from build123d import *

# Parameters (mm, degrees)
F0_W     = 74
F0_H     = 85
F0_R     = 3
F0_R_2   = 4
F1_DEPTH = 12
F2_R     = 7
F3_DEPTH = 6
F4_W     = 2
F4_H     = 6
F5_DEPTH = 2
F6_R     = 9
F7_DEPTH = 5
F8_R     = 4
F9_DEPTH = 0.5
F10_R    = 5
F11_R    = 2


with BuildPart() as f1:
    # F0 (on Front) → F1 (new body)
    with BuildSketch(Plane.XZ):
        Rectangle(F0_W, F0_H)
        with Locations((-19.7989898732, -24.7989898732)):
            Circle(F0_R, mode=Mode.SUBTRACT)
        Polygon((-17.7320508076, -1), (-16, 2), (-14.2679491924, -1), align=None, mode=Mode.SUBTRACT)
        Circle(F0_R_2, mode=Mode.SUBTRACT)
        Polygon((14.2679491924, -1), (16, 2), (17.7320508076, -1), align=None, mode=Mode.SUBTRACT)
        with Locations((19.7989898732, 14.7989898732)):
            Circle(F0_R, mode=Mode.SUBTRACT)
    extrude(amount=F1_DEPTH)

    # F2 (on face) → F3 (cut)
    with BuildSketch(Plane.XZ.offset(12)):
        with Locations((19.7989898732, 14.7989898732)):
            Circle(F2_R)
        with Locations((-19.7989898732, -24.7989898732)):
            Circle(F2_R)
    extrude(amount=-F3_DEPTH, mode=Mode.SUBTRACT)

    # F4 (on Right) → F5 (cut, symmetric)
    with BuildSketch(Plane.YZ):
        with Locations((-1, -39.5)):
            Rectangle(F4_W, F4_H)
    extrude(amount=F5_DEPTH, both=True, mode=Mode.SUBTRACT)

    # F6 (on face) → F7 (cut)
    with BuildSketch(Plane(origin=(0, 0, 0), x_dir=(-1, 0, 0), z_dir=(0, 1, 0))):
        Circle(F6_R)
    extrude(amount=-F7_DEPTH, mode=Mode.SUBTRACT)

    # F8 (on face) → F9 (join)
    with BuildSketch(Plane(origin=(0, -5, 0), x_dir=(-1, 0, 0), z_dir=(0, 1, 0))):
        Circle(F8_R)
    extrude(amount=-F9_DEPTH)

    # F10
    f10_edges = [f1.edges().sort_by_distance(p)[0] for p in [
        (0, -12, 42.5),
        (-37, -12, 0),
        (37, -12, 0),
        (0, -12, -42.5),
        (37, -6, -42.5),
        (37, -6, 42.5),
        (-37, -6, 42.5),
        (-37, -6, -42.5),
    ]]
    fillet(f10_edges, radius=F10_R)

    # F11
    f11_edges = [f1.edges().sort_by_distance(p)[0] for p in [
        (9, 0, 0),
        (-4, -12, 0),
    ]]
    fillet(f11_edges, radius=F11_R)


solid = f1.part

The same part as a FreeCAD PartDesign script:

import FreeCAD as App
import Part
import Sketcher
Q = App.Units.Quantity


def edges_at(feature, points):
    """Names of the edges that pass closest to the given points."""
    edges = feature.Shape.Edges
    near = lambda p: min(range(len(edges)), key=lambda i: edges[i].distToShape(Part.Vertex(*p))[0])
    return sorted({f"Edge{near(p) + 1}" for p in points})


def add_polygon(sketch, points):
    """Adds a closed chain of lines whose ends are joined by coincident constraints."""
    first, n = sketch.GeometryCount, len(points)
    for a, b in zip(points, points[1:] + points[:1]):
        sketch.addGeometry(Part.LineSegment(App.Vector(*a, 0), App.Vector(*b, 0)), False)
    for i in range(n):
        sketch.addConstraint(Sketcher.Constraint("Coincident", first + i, 2, first + (i + 1) % n, 1))

doc = App.newDocument("Part")
params = doc.addObject("Spreadsheet::Sheet", "Params")
for row, (alias, value) in enumerate([
    ("sketch1_diameter", "6 mm"),
    ("sketch1_diameter2", "8 mm"),
    ("sketch1_width", "74 mm"),
    ("sketch1_height", "85 mm"),
    ("pad1_length", "12 mm"),
    ("sketch2_diameter", "14 mm"),
    ("pocket1_length", "6 mm"),
    ("sketch3_width", "2 mm"),
    ("sketch3_height", "6 mm"),
    ("pocket2_length", "4 mm"),
    ("sketch4_diameter", "18 mm"),
    ("pocket3_length", "5 mm"),
    ("sketch5_diameter", "8 mm"),
    ("pad2_length", "0.5 mm"),
    ("fillet_radius", "5 mm"),
    ("fillet2_radius", "2 mm"),
], start=1):
    params.set(f"A{row}", alias)
    params.set(f"B{row}", "=" + value)
    params.setAlias(f"B{row}", alias)

body = doc.addObject("PartDesign::Body", "Body")

# Sketch on XZ plane
sketch1 = body.newObject("Sketcher::SketchObject", "Sketch")
sketch1.AttachmentSupport = (doc.getObject("XZ_Plane"), [""])
sketch1.MapMode = "FlatFace"
add_polygon(sketch1, [(-37, 42.5), (-37, -42.5), (37, -42.5), (37, 42.5)])  # lines 0-3
sketch1.addGeometry(Part.Circle(App.Vector(-19.8, -24.8, 0), App.Vector(0, 0, 1), 3), False)  # 4
add_polygon(sketch1, [(-14.3, -1), (-17.7, -1), (-16, 2)])  # lines 5-7
sketch1.addGeometry(Part.Circle(App.Vector(0, 0, 0), App.Vector(0, 0, 1), 4), False)  # 8
add_polygon(sketch1, [(17.7, -1), (14.3, -1), (16, 2)])  # lines 9-11
sketch1.addGeometry(Part.Circle(App.Vector(19.8, 14.8, 0), App.Vector(0, 0, 1), 3), False)  # 12
sketch1.addConstraint(Sketcher.Constraint("Vertical", 0))
sketch1.addConstraint(Sketcher.Constraint("Horizontal", 1))
sketch1.addConstraint(Sketcher.Constraint("Vertical", 2))
sketch1.addConstraint(Sketcher.Constraint("Horizontal", 3))
sketch1.addConstraint(Sketcher.Constraint("Horizontal", 5))
sketch1.addConstraint(Sketcher.Constraint("Horizontal", 9))
sketch1.addConstraint(Sketcher.Constraint("Coincident", 8, 3, -1, 1))
sketch1.addConstraint(Sketcher.Constraint("Equal", 4, 12))
sketch1.addConstraint(Sketcher.Constraint("Symmetric", 0, 2, 2, 2, -1, 1))
sketch1.addConstraint(Sketcher.Constraint("Symmetric", 7, 2, 9, 2, -2))
sketch1.addConstraint(Sketcher.Constraint("Symmetric", 6, 2, 10, 2, -2))
sketch1.addConstraint(Sketcher.Constraint("Parallel", 6, 10))
sketch1.addConstraint(Sketcher.Constraint("Parallel", 7, 11))
sketch1.addConstraint(Sketcher.Constraint("Diameter", 4, Q("6 mm")))
sketch1.addConstraint(Sketcher.Constraint("Diameter", 8, Q("8 mm")))
sketch1.addConstraint(Sketcher.Constraint("DistanceX", 1, 1, 1, 2, Q("74 mm")))
sketch1.addConstraint(Sketcher.Constraint("DistanceY", 0, 2, 0, 1, Q("85 mm")))
sketch1.addConstraint(Sketcher.Constraint("Angle", 6, Q("60 deg")))
sketch1.addConstraint(Sketcher.Constraint("DistanceY", 5, 2, -1, 1, Q("1 mm")))
sketch1.addConstraint(Sketcher.Constraint("DistanceX", 6, 2, -1, 1, Q("16 mm")))
sketch1.addConstraint(Sketcher.Constraint("DistanceY", -1, 1, 6, 2, Q("2 mm")))
sketch1.addConstraint(Sketcher.Constraint("DistanceX", 4, 3, -1, 1, Q("19.79899 mm")))
sketch1.addConstraint(Sketcher.Constraint("DistanceY", 4, 3, -1, 1, Q("24.79899 mm")))
sketch1.addConstraint(Sketcher.Constraint("DistanceX", -1, 1, 12, 3, Q("19.79899 mm")))
sketch1.addConstraint(Sketcher.Constraint("DistanceY", -1, 1, 12, 3, Q("14.79899 mm")))
sketch1.setExpression("Constraints[23]", "Params.sketch1_diameter")
sketch1.setExpression("Constraints[24]", "Params.sketch1_diameter2")
sketch1.setExpression("Constraints[25]", "Params.sketch1_width")
sketch1.setExpression("Constraints[26]", "Params.sketch1_height")
pad1 = body.newObject("PartDesign::Pad", "Pad")
pad1.Profile = sketch1
pad1.setExpression("Length", "Params.pad1_length")

# Sketch on XZ plane
sketch2 = body.newObject("Sketcher::SketchObject", "Sketch001")
sketch2.AttachmentSupport = (doc.getObject("XZ_Plane"), [""])
sketch2.MapMode = "FlatFace"
sketch2.AttachmentOffset = App.Placement(App.Vector(0, 0, 12), App.Rotation())
sketch2.addGeometry(Part.Circle(App.Vector(20, 15, 0), App.Vector(0, 0, 1), 7), False)
sketch2.addGeometry(Part.Circle(App.Vector(-20, -25, 0), App.Vector(0, 0, 1), 7), False)
sketch2.addConstraint(Sketcher.Constraint("Equal", 0, 1))
sketch2.addConstraint(Sketcher.Constraint("Diameter", 0, Q("14 mm")))
sketch2.addConstraint(Sketcher.Constraint("DistanceX", -1, 1, 0, 3, Q("19.79899 mm")))
sketch2.addConstraint(Sketcher.Constraint("DistanceY", -1, 1, 0, 3, Q("14.79899 mm")))
sketch2.addConstraint(Sketcher.Constraint("DistanceX", 1, 3, -1, 1, Q("19.79899 mm")))
sketch2.addConstraint(Sketcher.Constraint("DistanceY", 1, 3, -1, 1, Q("24.79899 mm")))
sketch2.setExpression("Constraints[1]", "Params.sketch2_diameter")
pocket1 = body.newObject("PartDesign::Pocket", "Pocket")
pocket1.Profile = sketch2
pocket1.setExpression("Length", "Params.pocket1_length")

# Sketch on YZ plane
sketch3 = body.newObject("Sketcher::SketchObject", "Sketch002")
sketch3.AttachmentSupport = (doc.getObject("YZ_Plane"), [""])
sketch3.MapMode = "FlatFace"
add_polygon(sketch3, [(-2, -36.5), (-2, -42.5), (0, -42.5), (0, -36.5)])  # lines 0-3
sketch3.addConstraint(Sketcher.Constraint("Vertical", 0))
sketch3.addConstraint(Sketcher.Constraint("Horizontal", 1))
sketch3.addConstraint(Sketcher.Constraint("Vertical", 2))
sketch3.addConstraint(Sketcher.Constraint("Horizontal", 3))
sketch3.addConstraint(Sketcher.Constraint("PointOnObject", 1, 2, -2))
sketch3.addConstraint(Sketcher.Constraint("DistanceX", 1, 1, 1, 2, Q("2 mm")))
sketch3.addConstraint(Sketcher.Constraint("DistanceY", 0, 2, 0, 1, Q("6 mm")))
sketch3.addConstraint(Sketcher.Constraint("DistanceY", 0, 2, -1, 1, Q("42.5 mm")))
sketch3.setExpression("Constraints[9]", "Params.sketch3_width")
sketch3.setExpression("Constraints[10]", "Params.sketch3_height")
pocket2 = body.newObject("PartDesign::Pocket", "Pocket001")
pocket2.Profile = sketch3
pocket2.setExpression("Length", "Params.pocket2_length")
pocket2.Midplane = True

# Sketch on XZ plane
sketch4 = body.newObject("Sketcher::SketchObject", "Sketch003")
sketch4.AttachmentSupport = (doc.getObject("XZ_Plane"), [""])
sketch4.MapMode = "FlatFace"
sketch4.addGeometry(Part.Circle(App.Vector(0, 0, 0), App.Vector(0, 0, 1), 9), False)
sketch4.addConstraint(Sketcher.Constraint("Coincident", 0, 3, -1, 1))
sketch4.addConstraint(Sketcher.Constraint("Diameter", 0, Q("18 mm")))
sketch4.setExpression("Constraints[1]", "Params.sketch4_diameter")
pocket3 = body.newObject("PartDesign::Pocket", "Pocket002")
pocket3.Profile = sketch4
pocket3.setExpression("Length", "Params.pocket3_length")
pocket3.Reversed = True

# Sketch on XZ plane
sketch5 = body.newObject("Sketcher::SketchObject", "Sketch004")
sketch5.AttachmentSupport = (doc.getObject("XZ_Plane"), [""])
sketch5.MapMode = "FlatFace"
sketch5.AttachmentOffset = App.Placement(App.Vector(0, 0, 5), App.Rotation())
sketch5.addGeometry(Part.Circle(App.Vector(0, 0, 0), App.Vector(0, 0, 1), 4), False)
sketch5.addConstraint(Sketcher.Constraint("Coincident", 0, 3, -1, 1))
sketch5.addConstraint(Sketcher.Constraint("Diameter", 0, Q("8 mm")))
sketch5.setExpression("Constraints[1]", "Params.sketch5_diameter")
pad2 = body.newObject("PartDesign::Pad", "Pad001")
pad2.Profile = sketch5
pad2.setExpression("Length", "Params.pad2_length")
doc.recompute()

fillet = body.newObject("PartDesign::Fillet", "Fillet")
fillet.Base = (pad2, edges_at(pad2, [
    (0, -12, 42.5),
    (-37, -12, 0),
    (37, -12, 0),
    (0, -12, -42.5),
    (37, -6, -42.5),
    (37, -6, 42.5),
    (-37, -6, 42.5),
    (-37, -6, -42.5),
]))
fillet.setExpression("Radius", "Params.fillet_radius")
doc.recompute()

fillet2 = body.newObject("PartDesign::Fillet", "Fillet001")
fillet2.Base = (fillet, edges_at(fillet, [(9, 0, 0), (-4, -12, 0)]))
fillet2.setExpression("Radius", "Params.fillet2_radius")

doc.recompute()
